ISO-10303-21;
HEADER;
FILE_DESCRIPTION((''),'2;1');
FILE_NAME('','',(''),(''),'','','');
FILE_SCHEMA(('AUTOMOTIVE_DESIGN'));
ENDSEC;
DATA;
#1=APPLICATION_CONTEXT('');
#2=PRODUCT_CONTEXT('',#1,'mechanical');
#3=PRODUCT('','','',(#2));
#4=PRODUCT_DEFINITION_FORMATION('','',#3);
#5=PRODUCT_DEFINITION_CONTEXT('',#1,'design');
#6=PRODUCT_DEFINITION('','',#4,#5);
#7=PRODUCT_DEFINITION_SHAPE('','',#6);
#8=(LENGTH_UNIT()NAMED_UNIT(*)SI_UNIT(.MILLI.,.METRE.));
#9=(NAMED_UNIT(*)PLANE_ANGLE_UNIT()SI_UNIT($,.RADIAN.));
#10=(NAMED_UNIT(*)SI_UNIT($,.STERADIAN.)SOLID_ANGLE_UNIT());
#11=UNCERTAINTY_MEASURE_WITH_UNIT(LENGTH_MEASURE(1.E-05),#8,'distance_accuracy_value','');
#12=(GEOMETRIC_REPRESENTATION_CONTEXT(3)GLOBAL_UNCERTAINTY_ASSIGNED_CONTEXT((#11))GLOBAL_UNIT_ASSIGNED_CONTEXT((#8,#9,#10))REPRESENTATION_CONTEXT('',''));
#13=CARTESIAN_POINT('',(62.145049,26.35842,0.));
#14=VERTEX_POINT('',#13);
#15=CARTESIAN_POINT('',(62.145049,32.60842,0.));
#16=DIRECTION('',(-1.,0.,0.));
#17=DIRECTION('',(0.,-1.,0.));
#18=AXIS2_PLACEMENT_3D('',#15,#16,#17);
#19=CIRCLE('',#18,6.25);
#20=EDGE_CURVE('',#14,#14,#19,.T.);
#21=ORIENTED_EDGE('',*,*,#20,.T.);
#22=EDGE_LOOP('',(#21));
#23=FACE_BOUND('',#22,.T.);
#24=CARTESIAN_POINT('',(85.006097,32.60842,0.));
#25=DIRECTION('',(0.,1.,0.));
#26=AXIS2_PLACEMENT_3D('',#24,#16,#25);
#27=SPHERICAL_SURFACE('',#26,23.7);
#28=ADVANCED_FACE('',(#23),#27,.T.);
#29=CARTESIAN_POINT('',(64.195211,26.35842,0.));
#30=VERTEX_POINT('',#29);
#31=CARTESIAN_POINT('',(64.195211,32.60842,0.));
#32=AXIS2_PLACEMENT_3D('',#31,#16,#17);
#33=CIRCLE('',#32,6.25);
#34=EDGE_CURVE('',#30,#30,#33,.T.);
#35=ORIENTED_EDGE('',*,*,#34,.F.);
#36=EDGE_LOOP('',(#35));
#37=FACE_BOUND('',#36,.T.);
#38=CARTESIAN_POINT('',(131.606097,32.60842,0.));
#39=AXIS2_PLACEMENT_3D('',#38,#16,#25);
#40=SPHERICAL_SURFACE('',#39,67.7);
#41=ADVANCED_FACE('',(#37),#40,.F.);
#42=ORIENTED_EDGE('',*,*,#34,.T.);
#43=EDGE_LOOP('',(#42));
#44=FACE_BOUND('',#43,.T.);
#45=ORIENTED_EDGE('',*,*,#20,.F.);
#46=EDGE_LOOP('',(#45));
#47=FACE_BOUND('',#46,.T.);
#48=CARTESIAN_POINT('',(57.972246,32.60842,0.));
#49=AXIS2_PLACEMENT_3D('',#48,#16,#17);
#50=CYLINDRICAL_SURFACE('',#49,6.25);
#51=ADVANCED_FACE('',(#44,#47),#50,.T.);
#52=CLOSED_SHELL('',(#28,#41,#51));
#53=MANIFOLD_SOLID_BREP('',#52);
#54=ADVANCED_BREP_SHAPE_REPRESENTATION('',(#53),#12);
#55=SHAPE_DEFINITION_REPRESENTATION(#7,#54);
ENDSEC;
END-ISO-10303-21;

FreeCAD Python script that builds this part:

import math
import FreeCAD as App
import Part
import Sketcher
Q = App.Units.Quantity

doc = App.newDocument("Part")
body = doc.addObject("PartDesign::Body", "Body")

# Sketch on XY plane
sketch1 = body.newObject("Sketcher::SketchObject", "Sketch")
sketch1.AttachmentSupport = (doc.getObject("XY_Plane"), [""])
sketch1.MapMode = "FlatFace"
sketch1.addGeometry([
    Part.LineSegment(App.Vector(64.2, 38.9, 0), App.Vector(62.1, 38.9, 0)),
    Part.ArcOfCircle(Part.Circle(App.Vector(85, 32.6, 0), App.Vector(0, 0, 1), 23.7), math.radians(164.71), math.radians(180)),
    Part.LineSegment(App.Vector(61.3, 32.6, 0), App.Vector(63.9, 32.6, 0)),
    Part.ArcOfCircle(Part.Circle(App.Vector(131.6, 32.6, 0), App.Vector(0, 0, 1), 67.7), math.radians(174.7), math.radians(180)),
], False)
sketch1.addGeometry(Part.LineSegment(App.Vector(61.3, 32.6, 0), App.Vector(131.6, 32.6, 0)), True)  # axis
sketch1.addConstraint([
    Sketcher.Constraint("Coincident", 0, 2, 1, 1),
    Sketcher.Constraint("Coincident", 1, 2, 2, 1),
    Sketcher.Constraint("Coincident", 2, 2, 3, 2),
    Sketcher.Constraint("Coincident", 3, 1, 0, 1),
    Sketcher.Constraint("Horizontal", 0),
    Sketcher.Constraint("Horizontal", 2),
    Sketcher.Constraint("Horizontal", 4),
    Sketcher.Constraint("Coincident", 4, 1, 1, 2),
    Sketcher.Constraint("Coincident", 4, 2, 3, 3),
    Sketcher.Constraint("Horizontal", 1, 3, 3, 3),
    Sketcher.Constraint("Radius", 1, Q("23.7 mm")),
    Sketcher.Constraint("Radius", 3, Q("67.699999 mm")),
    Sketcher.Constraint("DistanceX", 2, 1, 2, 2, Q("2.6 mm")),
    Sketcher.Constraint("DistanceY", 1, 3, 0, 2, Q("6.25 mm")),
    Sketcher.Constraint("DistanceY", -1, 1, 1, 3, Q("32.60842 mm")),
    Sketcher.Constraint("DistanceX", -1, 1, 0, 2, Q("62.145049 mm")),
])
revolution = body.newObject("PartDesign::Revolution", "Revolution")
revolution.Profile = sketch1
revolution.ReferenceAxis = (sketch1, ["Axis0"])
revolution.Angle = 360

doc.recompute()
